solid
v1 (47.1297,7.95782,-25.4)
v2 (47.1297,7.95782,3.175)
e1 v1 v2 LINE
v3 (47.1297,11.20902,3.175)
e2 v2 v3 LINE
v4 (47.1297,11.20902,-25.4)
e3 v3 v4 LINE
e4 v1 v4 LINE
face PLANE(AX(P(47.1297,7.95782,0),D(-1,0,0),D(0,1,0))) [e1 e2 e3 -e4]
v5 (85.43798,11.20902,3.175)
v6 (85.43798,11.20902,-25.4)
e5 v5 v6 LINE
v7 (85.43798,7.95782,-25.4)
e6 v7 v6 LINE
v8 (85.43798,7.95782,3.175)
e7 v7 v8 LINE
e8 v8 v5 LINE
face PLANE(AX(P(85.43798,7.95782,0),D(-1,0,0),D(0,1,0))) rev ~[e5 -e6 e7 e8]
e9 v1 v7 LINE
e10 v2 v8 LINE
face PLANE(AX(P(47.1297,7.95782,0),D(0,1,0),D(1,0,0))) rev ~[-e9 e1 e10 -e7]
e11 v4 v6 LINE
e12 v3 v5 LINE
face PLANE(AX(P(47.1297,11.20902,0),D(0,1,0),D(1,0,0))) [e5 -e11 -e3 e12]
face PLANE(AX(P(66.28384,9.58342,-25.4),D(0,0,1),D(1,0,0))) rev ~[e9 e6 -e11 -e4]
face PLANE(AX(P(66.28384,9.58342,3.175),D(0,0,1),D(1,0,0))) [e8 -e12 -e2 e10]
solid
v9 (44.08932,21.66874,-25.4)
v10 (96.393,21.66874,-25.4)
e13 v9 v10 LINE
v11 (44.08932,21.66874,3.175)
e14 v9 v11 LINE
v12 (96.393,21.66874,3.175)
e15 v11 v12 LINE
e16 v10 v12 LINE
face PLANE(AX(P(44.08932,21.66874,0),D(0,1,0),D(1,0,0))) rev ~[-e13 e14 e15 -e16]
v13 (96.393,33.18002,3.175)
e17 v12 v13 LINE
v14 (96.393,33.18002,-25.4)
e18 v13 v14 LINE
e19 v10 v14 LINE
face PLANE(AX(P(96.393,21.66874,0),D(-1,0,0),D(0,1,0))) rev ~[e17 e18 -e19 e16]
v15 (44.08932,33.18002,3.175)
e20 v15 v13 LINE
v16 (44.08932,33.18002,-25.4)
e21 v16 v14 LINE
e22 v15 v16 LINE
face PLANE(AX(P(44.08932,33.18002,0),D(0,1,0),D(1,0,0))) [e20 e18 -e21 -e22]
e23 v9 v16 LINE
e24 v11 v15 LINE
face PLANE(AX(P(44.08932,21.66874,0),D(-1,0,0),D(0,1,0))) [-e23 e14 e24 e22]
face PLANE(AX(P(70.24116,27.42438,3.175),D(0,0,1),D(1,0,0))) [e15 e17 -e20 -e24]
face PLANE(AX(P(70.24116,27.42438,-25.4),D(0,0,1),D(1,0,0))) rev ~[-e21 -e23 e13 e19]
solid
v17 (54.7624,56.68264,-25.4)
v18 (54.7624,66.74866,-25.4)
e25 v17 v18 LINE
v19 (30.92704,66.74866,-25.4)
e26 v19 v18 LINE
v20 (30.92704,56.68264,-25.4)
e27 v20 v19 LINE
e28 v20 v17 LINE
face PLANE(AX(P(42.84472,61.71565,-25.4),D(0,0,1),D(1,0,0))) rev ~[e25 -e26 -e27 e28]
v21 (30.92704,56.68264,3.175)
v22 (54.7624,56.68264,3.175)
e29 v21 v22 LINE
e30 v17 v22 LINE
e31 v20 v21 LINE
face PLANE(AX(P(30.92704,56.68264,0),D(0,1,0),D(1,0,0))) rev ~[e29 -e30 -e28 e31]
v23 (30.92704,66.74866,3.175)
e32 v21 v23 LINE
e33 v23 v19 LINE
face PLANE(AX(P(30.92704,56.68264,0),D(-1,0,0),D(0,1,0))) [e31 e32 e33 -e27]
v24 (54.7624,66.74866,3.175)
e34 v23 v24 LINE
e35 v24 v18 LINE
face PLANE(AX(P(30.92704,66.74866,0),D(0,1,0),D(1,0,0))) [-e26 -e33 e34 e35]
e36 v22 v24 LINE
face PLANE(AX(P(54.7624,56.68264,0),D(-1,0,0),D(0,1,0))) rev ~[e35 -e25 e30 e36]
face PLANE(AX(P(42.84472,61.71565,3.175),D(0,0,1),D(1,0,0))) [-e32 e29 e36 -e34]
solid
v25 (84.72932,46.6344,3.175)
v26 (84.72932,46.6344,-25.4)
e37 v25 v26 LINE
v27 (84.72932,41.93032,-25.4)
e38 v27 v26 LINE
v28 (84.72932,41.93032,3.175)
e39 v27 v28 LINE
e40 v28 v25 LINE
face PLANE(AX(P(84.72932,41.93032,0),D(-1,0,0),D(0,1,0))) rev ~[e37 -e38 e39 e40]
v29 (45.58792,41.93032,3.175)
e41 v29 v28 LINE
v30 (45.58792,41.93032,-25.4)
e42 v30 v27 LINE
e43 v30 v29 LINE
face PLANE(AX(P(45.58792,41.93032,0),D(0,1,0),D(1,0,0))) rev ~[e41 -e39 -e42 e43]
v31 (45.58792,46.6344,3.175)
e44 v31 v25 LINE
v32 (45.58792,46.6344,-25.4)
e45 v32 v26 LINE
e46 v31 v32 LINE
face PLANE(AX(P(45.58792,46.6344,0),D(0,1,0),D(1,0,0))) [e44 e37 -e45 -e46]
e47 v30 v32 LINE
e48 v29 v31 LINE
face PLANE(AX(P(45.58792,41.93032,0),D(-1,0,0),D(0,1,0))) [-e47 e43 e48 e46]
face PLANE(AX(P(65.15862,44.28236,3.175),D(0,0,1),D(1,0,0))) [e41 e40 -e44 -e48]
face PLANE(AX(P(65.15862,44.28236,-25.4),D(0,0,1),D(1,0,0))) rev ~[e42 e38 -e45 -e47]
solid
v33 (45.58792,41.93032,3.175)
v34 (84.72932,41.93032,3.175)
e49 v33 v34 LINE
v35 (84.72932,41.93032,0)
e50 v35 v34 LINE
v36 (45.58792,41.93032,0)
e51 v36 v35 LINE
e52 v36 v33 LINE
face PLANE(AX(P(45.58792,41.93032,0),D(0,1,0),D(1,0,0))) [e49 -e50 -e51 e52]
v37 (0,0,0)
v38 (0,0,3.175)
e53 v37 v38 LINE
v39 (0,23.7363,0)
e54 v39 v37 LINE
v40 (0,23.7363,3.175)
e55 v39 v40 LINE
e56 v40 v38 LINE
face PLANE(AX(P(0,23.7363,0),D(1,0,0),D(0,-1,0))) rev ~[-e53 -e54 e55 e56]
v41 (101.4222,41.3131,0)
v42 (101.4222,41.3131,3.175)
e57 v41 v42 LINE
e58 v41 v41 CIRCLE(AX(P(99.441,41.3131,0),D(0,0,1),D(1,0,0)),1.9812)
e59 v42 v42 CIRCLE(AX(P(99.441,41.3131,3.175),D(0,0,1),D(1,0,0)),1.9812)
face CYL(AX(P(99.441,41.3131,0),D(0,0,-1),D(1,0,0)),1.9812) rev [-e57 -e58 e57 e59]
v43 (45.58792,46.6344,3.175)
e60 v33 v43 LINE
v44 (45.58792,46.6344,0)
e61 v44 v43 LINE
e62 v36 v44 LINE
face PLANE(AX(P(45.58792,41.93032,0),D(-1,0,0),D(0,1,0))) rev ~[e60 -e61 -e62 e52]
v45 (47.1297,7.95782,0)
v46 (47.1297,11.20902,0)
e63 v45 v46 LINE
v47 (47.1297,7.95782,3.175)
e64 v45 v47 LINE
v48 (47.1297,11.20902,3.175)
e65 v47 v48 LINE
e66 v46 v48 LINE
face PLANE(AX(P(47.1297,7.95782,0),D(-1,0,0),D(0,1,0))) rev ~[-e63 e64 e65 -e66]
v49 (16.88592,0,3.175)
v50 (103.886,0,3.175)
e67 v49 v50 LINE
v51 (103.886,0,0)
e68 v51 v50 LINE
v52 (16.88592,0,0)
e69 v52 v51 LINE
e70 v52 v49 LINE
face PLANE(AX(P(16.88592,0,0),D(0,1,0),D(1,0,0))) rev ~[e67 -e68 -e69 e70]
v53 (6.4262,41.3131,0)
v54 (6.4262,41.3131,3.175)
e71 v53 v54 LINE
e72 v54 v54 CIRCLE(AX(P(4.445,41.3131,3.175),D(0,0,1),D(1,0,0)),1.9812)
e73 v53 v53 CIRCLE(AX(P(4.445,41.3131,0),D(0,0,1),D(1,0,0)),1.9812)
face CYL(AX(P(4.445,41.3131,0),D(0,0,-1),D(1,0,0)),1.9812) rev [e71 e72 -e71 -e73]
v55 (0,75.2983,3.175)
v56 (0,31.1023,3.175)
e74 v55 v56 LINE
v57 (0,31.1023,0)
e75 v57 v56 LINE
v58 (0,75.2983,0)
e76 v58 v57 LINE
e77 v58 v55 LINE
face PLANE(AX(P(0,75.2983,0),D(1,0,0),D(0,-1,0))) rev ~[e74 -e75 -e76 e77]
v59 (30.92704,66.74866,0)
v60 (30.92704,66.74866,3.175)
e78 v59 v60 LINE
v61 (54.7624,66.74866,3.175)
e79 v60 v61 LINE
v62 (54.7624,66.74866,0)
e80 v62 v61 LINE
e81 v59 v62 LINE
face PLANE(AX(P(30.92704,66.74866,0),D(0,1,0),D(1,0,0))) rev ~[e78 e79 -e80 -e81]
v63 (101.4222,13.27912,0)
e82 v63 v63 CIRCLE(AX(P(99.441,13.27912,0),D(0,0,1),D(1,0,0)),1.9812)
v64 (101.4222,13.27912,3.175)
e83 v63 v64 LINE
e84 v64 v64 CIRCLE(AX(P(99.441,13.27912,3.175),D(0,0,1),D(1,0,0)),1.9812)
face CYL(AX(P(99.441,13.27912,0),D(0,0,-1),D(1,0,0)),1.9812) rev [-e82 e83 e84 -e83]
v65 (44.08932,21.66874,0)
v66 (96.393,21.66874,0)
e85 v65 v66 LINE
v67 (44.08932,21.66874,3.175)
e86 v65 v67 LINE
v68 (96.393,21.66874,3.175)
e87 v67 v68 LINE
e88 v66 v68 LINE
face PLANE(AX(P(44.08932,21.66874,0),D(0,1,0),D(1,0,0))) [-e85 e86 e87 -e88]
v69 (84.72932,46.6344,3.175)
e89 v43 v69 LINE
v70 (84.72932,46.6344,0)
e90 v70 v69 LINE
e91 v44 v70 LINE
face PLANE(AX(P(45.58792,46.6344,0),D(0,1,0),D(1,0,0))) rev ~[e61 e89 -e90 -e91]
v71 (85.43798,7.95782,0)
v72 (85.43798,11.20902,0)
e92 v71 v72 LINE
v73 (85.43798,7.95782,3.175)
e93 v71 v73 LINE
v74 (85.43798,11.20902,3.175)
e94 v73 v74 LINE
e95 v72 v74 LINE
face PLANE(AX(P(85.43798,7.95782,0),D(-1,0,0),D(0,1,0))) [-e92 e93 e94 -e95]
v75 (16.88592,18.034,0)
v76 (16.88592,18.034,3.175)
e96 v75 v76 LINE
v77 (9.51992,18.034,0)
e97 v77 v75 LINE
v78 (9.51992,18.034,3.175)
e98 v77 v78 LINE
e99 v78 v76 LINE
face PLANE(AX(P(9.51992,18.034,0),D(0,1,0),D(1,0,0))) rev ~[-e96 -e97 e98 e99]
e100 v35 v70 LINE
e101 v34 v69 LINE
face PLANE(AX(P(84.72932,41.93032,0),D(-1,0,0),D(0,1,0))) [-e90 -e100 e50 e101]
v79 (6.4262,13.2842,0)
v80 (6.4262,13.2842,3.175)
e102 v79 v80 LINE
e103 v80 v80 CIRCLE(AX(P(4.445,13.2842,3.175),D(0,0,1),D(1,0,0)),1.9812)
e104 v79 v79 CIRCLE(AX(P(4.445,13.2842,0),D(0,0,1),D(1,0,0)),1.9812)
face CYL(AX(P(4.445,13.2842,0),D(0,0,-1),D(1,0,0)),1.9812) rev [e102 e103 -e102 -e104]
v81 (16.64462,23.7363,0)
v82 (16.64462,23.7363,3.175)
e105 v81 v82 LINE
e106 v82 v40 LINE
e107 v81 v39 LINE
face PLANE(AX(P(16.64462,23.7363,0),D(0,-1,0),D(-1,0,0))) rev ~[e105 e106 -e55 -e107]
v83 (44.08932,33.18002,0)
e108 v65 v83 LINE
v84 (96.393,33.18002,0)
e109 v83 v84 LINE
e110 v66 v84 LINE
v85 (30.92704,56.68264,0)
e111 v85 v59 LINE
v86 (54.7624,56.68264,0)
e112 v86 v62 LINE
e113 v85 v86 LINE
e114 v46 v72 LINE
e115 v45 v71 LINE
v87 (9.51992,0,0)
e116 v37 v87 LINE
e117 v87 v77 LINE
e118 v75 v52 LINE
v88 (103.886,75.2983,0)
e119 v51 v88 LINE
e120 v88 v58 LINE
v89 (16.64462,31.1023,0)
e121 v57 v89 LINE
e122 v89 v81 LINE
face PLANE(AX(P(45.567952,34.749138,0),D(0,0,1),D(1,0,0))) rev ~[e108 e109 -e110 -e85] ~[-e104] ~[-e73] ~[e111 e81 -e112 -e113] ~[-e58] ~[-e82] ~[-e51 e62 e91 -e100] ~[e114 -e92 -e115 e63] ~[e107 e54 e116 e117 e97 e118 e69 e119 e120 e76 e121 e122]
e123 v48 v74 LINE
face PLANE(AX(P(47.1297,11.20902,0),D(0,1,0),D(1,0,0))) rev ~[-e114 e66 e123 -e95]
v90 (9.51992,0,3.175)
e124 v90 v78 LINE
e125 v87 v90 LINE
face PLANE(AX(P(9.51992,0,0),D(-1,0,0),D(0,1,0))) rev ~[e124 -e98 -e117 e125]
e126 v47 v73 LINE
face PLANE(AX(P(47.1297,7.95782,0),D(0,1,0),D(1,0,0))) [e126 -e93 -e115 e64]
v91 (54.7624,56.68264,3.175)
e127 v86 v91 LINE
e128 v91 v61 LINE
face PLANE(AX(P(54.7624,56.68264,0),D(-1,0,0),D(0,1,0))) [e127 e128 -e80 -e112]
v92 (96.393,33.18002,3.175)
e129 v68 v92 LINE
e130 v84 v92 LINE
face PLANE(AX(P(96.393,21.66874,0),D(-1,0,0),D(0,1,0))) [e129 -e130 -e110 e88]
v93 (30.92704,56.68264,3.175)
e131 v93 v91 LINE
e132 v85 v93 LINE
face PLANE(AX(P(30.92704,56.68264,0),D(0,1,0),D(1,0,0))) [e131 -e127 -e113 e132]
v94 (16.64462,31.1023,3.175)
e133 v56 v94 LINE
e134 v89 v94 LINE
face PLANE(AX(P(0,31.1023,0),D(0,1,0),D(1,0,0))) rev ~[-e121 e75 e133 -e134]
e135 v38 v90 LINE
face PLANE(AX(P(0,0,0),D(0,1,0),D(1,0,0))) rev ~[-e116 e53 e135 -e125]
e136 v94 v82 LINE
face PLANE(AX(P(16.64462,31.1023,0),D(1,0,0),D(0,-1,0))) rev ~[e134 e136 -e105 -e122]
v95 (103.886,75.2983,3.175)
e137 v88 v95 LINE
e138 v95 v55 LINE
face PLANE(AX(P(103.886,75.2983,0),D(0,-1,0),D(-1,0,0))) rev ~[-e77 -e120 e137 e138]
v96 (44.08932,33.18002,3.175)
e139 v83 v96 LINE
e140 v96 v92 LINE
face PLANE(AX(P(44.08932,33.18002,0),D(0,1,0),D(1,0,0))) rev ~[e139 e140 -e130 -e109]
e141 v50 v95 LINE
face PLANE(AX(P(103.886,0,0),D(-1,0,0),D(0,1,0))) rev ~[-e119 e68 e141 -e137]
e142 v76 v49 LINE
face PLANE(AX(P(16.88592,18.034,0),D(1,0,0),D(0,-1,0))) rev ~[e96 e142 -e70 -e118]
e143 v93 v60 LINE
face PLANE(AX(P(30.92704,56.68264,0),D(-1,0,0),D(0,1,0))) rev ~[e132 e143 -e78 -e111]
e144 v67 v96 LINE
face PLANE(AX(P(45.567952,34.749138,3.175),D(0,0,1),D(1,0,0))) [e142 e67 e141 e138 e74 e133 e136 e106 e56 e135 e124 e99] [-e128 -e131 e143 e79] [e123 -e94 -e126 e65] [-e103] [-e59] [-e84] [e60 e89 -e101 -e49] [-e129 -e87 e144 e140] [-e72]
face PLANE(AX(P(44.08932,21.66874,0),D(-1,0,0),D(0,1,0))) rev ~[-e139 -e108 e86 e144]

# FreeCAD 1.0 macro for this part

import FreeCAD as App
import Part
import Sketcher
from FreeCAD import Vector
Q = App.Units.Quantity


def add_polygon(sketch, points):
    """Adds a closed chain of lines whose ends are joined by coincident constraints."""
    first, n = sketch.GeometryCount, len(points)
    for a, b in zip(points, points[1:] + points[:1]):
        sketch.addGeometry(Part.LineSegment(App.Vector(*a, 0), App.Vector(*b, 0)), False)
    for i in range(n):
        sketch.addConstraint(Sketcher.Constraint("Coincident", first + i, 2, first + (i + 1) % n, 1))

doc = App.newDocument("Part")
body = doc.addObject("PartDesign::Body", "Body")

# Sketch on XY plane
sketch1 = body.newObject("Sketcher::SketchObject", "Sketch")
sketch1.AttachmentSupport = (doc.getObject("XY_Plane"), [""])
sketch1.MapMode = "FlatFace"
add_polygon(sketch1, [(44, 33), (44, 22), (96, 22), (96, 33)])  # lines 0-3
sketch1.addConstraint(Sketcher.Constraint("Vertical", 0))
sketch1.addConstraint(Sketcher.Constraint("Horizontal", 1))
sketch1.addConstraint(Sketcher.Constraint("Vertical", 2))
sketch1.addConstraint(Sketcher.Constraint("Horizontal", 3))
sketch1.addConstraint(Sketcher.Constraint("DistanceX", 1, 1, 1, 2, Q("2.0592 in")))
sketch1.addConstraint(Sketcher.Constraint("DistanceY", 0, 2, 0, 1, Q("0.4532 in")))
sketch1.addConstraint(Sketcher.Constraint("DistanceX", -1, 1, 1, 2, Q("3.795 in")))
sketch1.addConstraint(Sketcher.Constraint("DistanceY", -1, 1, 0, 2, Q("0.8531 in")))
pad1 = body.newObject("PartDesign::Pad", "Pad")
pad1.Profile = sketch1
pad1.Type = "TwoLengths"
pad1.Length = Q("1 in")
pad1.Length2 = Q("0.125 in")
pad1.Reversed = True
body2 = doc.addObject("PartDesign::Body", "Body001")

# Sketch on XY plane
sketch2 = body2.newObject("Sketcher::SketchObject", "Sketch001")
sketch2.AttachmentSupport = (doc.getObject("XY_Plane001"), [""])
sketch2.MapMode = "FlatFace"
add_polygon(sketch2, [(47.1, 11.2), (47.1, 8), (85.4, 8), (85.4, 11.2)])  # lines 0-3
sketch2.addConstraint(Sketcher.Constraint("Vertical", 0))
sketch2.addConstraint(Sketcher.Constraint("Horizontal", 1))
sketch2.addConstraint(Sketcher.Constraint("Vertical", 2))
sketch2.addConstraint(Sketcher.Constraint("Horizontal", 3))
sketch2.addConstraint(Sketcher.Constraint("DistanceY", 0, 2, 0, 1, Q("0.128 in")))
sketch2.addConstraint(Sketcher.Constraint("DistanceX", 1, 1, 1, 2, Q("1.5082 in")))
sketch2.addConstraint(Sketcher.Constraint("DistanceX", -1, 1, 0, 2, Q("1.8555 in")))
sketch2.addConstraint(Sketcher.Constraint("DistanceY", -1, 1, 0, 2, Q("0.3133 in")))
pad2 = body2.newObject("PartDesign::Pad", "Pad001")
pad2.Profile = sketch2
pad2.Type = "TwoLengths"
pad2.Length = Q("1 in")
pad2.Length2 = Q("0.125 in")
pad2.Reversed = True
body3 = doc.addObject("PartDesign::Body", "Body002")

# Sketch on XY plane
sketch3 = body3.newObject("Sketcher::SketchObject", "Sketch002")
sketch3.AttachmentSupport = (doc.getObject("XY_Plane002"), [""])
sketch3.MapMode = "FlatFace"
add_polygon(sketch3, [(45.6, 46.6), (45.6, 41.9), (84.7, 41.9), (84.7, 46.6)])  # lines 0-3
sketch3.addConstraint(Sketcher.Constraint("Vertical", 0))
sketch3.addConstraint(Sketcher.Constraint("Horizontal", 1))
sketch3.addConstraint(Sketcher.Constraint("Vertical", 2))
sketch3.addConstraint(Sketcher.Constraint("Horizontal", 3))
sketch3.addConstraint(Sketcher.Constraint("DistanceX", 1, 1, 1, 2, Q("1.541 in")))
sketch3.addConstraint(Sketcher.Constraint("DistanceY", 0, 2, 0, 1, Q("0.1852 in")))
sketch3.addConstraint(Sketcher.Constraint("DistanceY", -1, 1, 2, 2, Q("1.836 in")))
sketch3.addConstraint(Sketcher.Constraint("DistanceX", -1, 1, 0, 2, Q("1.7948 in")))
pad3 = body3.newObject("PartDesign::Pad", "Pad002")
pad3.Profile = sketch3
pad3.Type = "TwoLengths"
pad3.Length = Q("1 in")
pad3.Length2 = Q("0.125 in")
pad3.Reversed = True
body4 = doc.addObject("PartDesign::Body", "Body003")

# Sketch on XY plane
sketch4 = body4.newObject("Sketcher::SketchObject", "Sketch003")
sketch4.AttachmentSupport = (doc.getObject("XY_Plane003"), [""])
sketch4.MapMode = "FlatFace"
add_polygon(sketch4, [(31, 67), (31, 57), (55, 57), (55, 67)])  # lines 0-3
sketch4.addConstraint(Sketcher.Constraint("Vertical", 0))
sketch4.addConstraint(Sketcher.Constraint("Horizontal", 1))
sketch4.addConstraint(Sketcher.Constraint("Vertical", 2))
sketch4.addConstraint(Sketcher.Constraint("Horizontal", 3))
sketch4.addConstraint(Sketcher.Constraint("DistanceX", 1, 1, 1, 2, Q("0.9384 in")))
sketch4.addConstraint(Sketcher.Constraint("DistanceY", 0, 2, 0, 1, Q("0.3963 in")))
sketch4.addConstraint(Sketcher.Constraint("DistanceX", -1, 1, 1, 2, Q("2.156 in")))
sketch4.addConstraint(Sketcher.Constraint("DistanceY", -1, 1, 0, 2, Q("2.2316 in")))
pad4 = body4.newObject("PartDesign::Pad", "Pad003")
pad4.Profile = sketch4
pad4.Type = "TwoLengths"
pad4.Length = Q("1 in")
pad4.Length2 = Q("0.125 in")
pad4.Reversed = True
body5 = doc.addObject("PartDesign::Body", "Body004")

# Sketch on XY plane
sketch5 = body5.newObject("Sketcher::SketchObject", "Sketch004")
sketch5.AttachmentSupport = (doc.getObject("XY_Plane004"), [""])
sketch5.MapMode = "FlatFace"
add_polygon(sketch5, [(0, 23.7), (0, 0), (9.5, 0), (9.5, 18), (16.9, 18), (16.9, 0), (103.9, 0), (103.9, 75.3), (0, 75.3), (0, 31.1), (16.6, 31.1), (16.6, 23.7)])  # lines 0-11
sketch5.addGeometry(Part.Circle(Vector(4.4, 13.3, 0), Vector(0, 0, 1), 2), False)  # 12
add_polygon(sketch5, [(85.4, 8), (47.1, 8), (47.1, 11.2), (85.4, 11.2)])  # lines 13-16
sketch5.addGeometry(Part.Circle(Vector(99.4, 13.3, 0), Vector(0, 0, 1), 2), False)  # 17
add_polygon(sketch5, [(96.4, 21.7), (44.1, 21.7), (44.1, 33.2), (96.4, 33.2)])  # lines 18-21
sketch5.addGeometry(Part.Circle(Vector(4.4, 41.3, 0), Vector(0, 0, 1), 2), False)  # 22
add_polygon(sketch5, [(54.8, 56.7), (30.9, 56.7), (30.9, 66.7), (54.8, 66.7)])  # lines 23-26
add_polygon(sketch5, [(84.7, 41.9), (45.6, 41.9), (45.6, 46.6), (84.7, 46.6)])  # lines 27-30
sketch5.addGeometry(Part.Circle(Vector(99.4, 41.3, 0), Vector(0, 0, 1), 2), False)  # 31
sketch5.addConstraint(Sketcher.Constraint("Vertical", 0))
sketch5.addConstraint(Sketcher.Constraint("Horizontal", 1))
sketch5.addConstraint(Sketcher.Constraint("Vertical", 2))
sketch5.addConstraint(Sketcher.Constraint("Horizontal", 3))
sketch5.addConstraint(Sketcher.Constraint("Vertical", 4))
sketch5.addConstraint(Sketcher.Constraint("Horizontal", 5))
sketch5.addConstraint(Sketcher.Constraint("Vertical", 6))
sketch5.addConstraint(Sketcher.Constraint("Horizontal", 7))
sketch5.addConstraint(Sketcher.Constraint("Vertical", 8))
sketch5.addConstraint(Sketcher.Constraint("Horizontal", 9))
sketch5.addConstraint(Sketcher.Constraint("Vertical", 10))
sketch5.addConstraint(Sketcher.Constraint("Horizontal", 11))
sketch5.addConstraint(Sketcher.Constraint("Horizontal", 13))
sketch5.addConstraint(Sketcher.Constraint("Vertical", 14))
sketch5.addConstraint(Sketcher.Constraint("Horizontal", 15))
sketch5.addConstraint(Sketcher.Constraint("Vertical", 16))
sketch5.addConstraint(Sketcher.Constraint("Horizontal", 18))
sketch5.addConstraint(Sketcher.Constraint("Vertical", 19))
sketch5.addConstraint(Sketcher.Constraint("Horizontal", 20))
sketch5.addConstraint(Sketcher.Constraint("Vertical", 21))
sketch5.addConstraint(Sketcher.Constraint("Horizontal", 23))
sketch5.addConstraint(Sketcher.Constraint("Vertical", 24))
sketch5.addConstraint(Sketcher.Constraint("Horizontal", 25))
sketch5.addConstraint(Sketcher.Constraint("Vertical", 26))
sketch5.addConstraint(Sketcher.Constraint("Horizontal", 27))
sketch5.addConstraint(Sketcher.Constraint("Vertical", 28))
sketch5.addConstraint(Sketcher.Constraint("Horizontal", 29))
sketch5.addConstraint(Sketcher.Constraint("Vertical", 30))
sketch5.addConstraint(Sketcher.Constraint("Coincident", 0, 2, -1, 1))
sketch5.addConstraint(Sketcher.Constraint("Equal", 12, 17))
sketch5.addConstraint(Sketcher.Constraint("Equal", 17, 22))
sketch5.addConstraint(Sketcher.Constraint("Equal", 22, 31))
sketch5.addConstraint(Sketcher.Constraint("PointOnObject", 4, 2, -1))
sketch5.addConstraint(Sketcher.Constraint("PointOnObject", 7, 2, -2))
sketch5.addConstraint(Sketcher.Constraint("Horizontal", 22, 3, 31, 3))
sketch5.addConstraint(Sketcher.Constraint("Vertical", 12, 3, 22, 3))
sketch5.addConstraint(Sketcher.Constraint("Vertical", 17, 3, 31, 3))
sketch5.addConstraint(Sketcher.Constraint("Equal", 3, 10))
sketch5.addConstraint(Sketcher.Constraint("Diameter", 12, Q("0.156 in")))
sketch5.addConstraint(Sketcher.Constraint("DistanceX", 3, 1, 3, 2, Q("0.29 in")))
sketch5.addConstraint(Sketcher.Constraint("DistanceX", 7, 2, 7, 1, Q("4.09 in")))
sketch5.addConstraint(Sketcher.Constraint("DistanceY", 2, 1, 2, 2, Q("0.71 in")))
sketch5.addConstraint(Sketcher.Constraint("DistanceY", 8, 2, 8, 1, Q("1.74 in")))
sketch5.addConstraint(Sketcher.Constraint("DistanceX", 27, 2, 27, 1, Q("1.541 in")))
sketch5.addConstraint(Sketcher.Constraint("DistanceY", 14, 1, 14, 2, Q("0.128 in")))
sketch5.addConstraint(Sketcher.Constraint("DistanceX", 12, 3, 17, 3, Q("3.74 in")))
sketch5.addConstraint(Sketcher.Constraint("DistanceX", 20, 2, 31, 3, Q("0.12 in")))
sketch5.addConstraint(Sketcher.Constraint("DistanceX", 1, 1, 1, 2, Q("0.3748 in")))
sketch5.addConstraint(Sketcher.Constraint("DistanceX", 9, 1, 9, 2, Q("0.6553 in")))
sketch5.addConstraint(Sketcher.Constraint("DistanceX", 13, 2, 13, 1, Q("1.5082 in")))
sketch5.addConstraint(Sketcher.Constraint("DistanceX", 18, 2, 18, 1, Q("2.0592 in")))
sketch5.addConstraint(Sketcher.Constraint("DistanceX", 23, 2, 23, 1, Q("0.9384 in")))
sketch5.addConstraint(Sketcher.Constraint("DistanceY", 0, 2, 0, 1, Q("0.9345 in")))
sketch5.addConstraint(Sketcher.Constraint("DistanceY", 19, 1, 19, 2, Q("0.4532 in")))
sketch5.addConstraint(Sketcher.Constraint("DistanceY", 24, 1, 24, 2, Q("0.3963 in")))
sketch5.addConstraint(Sketcher.Constraint("DistanceY", 28, 1, 28, 2, Q("0.1852 in")))
sketch5.addConstraint(Sketcher.Constraint("DistanceX", -1, 1, 12, 3, Q("0.175 in")))
sketch5.addConstraint(Sketcher.Constraint("DistanceY", -1, 1, 12, 3, Q("0.523 in")))
sketch5.addConstraint(Sketcher.Constraint("DistanceX", -1, 1, 25, 2, Q("2.156 in")))
sketch5.addConstraint(Sketcher.Constraint("DistanceY", -1, 1, 28, 2, Q("1.836 in")))
sketch5.addConstraint(Sketcher.Constraint("DistanceY", 31, 3, 6, 2, Q("1.338 in")))
sketch5.addConstraint(Sketcher.Constraint("DistanceY", 14, 2, 19, 2, Q("0.865 in")))
sketch5.addConstraint(Sketcher.Constraint("DistanceX", 19, 2, 27, 2, Q("0.059 in")))
sketch5.addConstraint(Sketcher.Constraint("DistanceY", -1, 1, 17, 3, Q("0.5228 in")))
sketch5.addConstraint(Sketcher.Constraint("DistanceX", -1, 1, 13, 2, Q("1.8555 in")))
sketch5.addConstraint(Sketcher.Constraint("DistanceY", -1, 1, 13, 2, Q("0.3133 in")))
sketch5.addConstraint(Sketcher.Constraint("DistanceY", -1, 1, 23, 2, Q("2.2316 in")))
pad5 = body5.newObject("PartDesign::Pad", "Pad004")
pad5.Profile = sketch5
pad5.Length = Q("0.125 in")

doc.recompute()
